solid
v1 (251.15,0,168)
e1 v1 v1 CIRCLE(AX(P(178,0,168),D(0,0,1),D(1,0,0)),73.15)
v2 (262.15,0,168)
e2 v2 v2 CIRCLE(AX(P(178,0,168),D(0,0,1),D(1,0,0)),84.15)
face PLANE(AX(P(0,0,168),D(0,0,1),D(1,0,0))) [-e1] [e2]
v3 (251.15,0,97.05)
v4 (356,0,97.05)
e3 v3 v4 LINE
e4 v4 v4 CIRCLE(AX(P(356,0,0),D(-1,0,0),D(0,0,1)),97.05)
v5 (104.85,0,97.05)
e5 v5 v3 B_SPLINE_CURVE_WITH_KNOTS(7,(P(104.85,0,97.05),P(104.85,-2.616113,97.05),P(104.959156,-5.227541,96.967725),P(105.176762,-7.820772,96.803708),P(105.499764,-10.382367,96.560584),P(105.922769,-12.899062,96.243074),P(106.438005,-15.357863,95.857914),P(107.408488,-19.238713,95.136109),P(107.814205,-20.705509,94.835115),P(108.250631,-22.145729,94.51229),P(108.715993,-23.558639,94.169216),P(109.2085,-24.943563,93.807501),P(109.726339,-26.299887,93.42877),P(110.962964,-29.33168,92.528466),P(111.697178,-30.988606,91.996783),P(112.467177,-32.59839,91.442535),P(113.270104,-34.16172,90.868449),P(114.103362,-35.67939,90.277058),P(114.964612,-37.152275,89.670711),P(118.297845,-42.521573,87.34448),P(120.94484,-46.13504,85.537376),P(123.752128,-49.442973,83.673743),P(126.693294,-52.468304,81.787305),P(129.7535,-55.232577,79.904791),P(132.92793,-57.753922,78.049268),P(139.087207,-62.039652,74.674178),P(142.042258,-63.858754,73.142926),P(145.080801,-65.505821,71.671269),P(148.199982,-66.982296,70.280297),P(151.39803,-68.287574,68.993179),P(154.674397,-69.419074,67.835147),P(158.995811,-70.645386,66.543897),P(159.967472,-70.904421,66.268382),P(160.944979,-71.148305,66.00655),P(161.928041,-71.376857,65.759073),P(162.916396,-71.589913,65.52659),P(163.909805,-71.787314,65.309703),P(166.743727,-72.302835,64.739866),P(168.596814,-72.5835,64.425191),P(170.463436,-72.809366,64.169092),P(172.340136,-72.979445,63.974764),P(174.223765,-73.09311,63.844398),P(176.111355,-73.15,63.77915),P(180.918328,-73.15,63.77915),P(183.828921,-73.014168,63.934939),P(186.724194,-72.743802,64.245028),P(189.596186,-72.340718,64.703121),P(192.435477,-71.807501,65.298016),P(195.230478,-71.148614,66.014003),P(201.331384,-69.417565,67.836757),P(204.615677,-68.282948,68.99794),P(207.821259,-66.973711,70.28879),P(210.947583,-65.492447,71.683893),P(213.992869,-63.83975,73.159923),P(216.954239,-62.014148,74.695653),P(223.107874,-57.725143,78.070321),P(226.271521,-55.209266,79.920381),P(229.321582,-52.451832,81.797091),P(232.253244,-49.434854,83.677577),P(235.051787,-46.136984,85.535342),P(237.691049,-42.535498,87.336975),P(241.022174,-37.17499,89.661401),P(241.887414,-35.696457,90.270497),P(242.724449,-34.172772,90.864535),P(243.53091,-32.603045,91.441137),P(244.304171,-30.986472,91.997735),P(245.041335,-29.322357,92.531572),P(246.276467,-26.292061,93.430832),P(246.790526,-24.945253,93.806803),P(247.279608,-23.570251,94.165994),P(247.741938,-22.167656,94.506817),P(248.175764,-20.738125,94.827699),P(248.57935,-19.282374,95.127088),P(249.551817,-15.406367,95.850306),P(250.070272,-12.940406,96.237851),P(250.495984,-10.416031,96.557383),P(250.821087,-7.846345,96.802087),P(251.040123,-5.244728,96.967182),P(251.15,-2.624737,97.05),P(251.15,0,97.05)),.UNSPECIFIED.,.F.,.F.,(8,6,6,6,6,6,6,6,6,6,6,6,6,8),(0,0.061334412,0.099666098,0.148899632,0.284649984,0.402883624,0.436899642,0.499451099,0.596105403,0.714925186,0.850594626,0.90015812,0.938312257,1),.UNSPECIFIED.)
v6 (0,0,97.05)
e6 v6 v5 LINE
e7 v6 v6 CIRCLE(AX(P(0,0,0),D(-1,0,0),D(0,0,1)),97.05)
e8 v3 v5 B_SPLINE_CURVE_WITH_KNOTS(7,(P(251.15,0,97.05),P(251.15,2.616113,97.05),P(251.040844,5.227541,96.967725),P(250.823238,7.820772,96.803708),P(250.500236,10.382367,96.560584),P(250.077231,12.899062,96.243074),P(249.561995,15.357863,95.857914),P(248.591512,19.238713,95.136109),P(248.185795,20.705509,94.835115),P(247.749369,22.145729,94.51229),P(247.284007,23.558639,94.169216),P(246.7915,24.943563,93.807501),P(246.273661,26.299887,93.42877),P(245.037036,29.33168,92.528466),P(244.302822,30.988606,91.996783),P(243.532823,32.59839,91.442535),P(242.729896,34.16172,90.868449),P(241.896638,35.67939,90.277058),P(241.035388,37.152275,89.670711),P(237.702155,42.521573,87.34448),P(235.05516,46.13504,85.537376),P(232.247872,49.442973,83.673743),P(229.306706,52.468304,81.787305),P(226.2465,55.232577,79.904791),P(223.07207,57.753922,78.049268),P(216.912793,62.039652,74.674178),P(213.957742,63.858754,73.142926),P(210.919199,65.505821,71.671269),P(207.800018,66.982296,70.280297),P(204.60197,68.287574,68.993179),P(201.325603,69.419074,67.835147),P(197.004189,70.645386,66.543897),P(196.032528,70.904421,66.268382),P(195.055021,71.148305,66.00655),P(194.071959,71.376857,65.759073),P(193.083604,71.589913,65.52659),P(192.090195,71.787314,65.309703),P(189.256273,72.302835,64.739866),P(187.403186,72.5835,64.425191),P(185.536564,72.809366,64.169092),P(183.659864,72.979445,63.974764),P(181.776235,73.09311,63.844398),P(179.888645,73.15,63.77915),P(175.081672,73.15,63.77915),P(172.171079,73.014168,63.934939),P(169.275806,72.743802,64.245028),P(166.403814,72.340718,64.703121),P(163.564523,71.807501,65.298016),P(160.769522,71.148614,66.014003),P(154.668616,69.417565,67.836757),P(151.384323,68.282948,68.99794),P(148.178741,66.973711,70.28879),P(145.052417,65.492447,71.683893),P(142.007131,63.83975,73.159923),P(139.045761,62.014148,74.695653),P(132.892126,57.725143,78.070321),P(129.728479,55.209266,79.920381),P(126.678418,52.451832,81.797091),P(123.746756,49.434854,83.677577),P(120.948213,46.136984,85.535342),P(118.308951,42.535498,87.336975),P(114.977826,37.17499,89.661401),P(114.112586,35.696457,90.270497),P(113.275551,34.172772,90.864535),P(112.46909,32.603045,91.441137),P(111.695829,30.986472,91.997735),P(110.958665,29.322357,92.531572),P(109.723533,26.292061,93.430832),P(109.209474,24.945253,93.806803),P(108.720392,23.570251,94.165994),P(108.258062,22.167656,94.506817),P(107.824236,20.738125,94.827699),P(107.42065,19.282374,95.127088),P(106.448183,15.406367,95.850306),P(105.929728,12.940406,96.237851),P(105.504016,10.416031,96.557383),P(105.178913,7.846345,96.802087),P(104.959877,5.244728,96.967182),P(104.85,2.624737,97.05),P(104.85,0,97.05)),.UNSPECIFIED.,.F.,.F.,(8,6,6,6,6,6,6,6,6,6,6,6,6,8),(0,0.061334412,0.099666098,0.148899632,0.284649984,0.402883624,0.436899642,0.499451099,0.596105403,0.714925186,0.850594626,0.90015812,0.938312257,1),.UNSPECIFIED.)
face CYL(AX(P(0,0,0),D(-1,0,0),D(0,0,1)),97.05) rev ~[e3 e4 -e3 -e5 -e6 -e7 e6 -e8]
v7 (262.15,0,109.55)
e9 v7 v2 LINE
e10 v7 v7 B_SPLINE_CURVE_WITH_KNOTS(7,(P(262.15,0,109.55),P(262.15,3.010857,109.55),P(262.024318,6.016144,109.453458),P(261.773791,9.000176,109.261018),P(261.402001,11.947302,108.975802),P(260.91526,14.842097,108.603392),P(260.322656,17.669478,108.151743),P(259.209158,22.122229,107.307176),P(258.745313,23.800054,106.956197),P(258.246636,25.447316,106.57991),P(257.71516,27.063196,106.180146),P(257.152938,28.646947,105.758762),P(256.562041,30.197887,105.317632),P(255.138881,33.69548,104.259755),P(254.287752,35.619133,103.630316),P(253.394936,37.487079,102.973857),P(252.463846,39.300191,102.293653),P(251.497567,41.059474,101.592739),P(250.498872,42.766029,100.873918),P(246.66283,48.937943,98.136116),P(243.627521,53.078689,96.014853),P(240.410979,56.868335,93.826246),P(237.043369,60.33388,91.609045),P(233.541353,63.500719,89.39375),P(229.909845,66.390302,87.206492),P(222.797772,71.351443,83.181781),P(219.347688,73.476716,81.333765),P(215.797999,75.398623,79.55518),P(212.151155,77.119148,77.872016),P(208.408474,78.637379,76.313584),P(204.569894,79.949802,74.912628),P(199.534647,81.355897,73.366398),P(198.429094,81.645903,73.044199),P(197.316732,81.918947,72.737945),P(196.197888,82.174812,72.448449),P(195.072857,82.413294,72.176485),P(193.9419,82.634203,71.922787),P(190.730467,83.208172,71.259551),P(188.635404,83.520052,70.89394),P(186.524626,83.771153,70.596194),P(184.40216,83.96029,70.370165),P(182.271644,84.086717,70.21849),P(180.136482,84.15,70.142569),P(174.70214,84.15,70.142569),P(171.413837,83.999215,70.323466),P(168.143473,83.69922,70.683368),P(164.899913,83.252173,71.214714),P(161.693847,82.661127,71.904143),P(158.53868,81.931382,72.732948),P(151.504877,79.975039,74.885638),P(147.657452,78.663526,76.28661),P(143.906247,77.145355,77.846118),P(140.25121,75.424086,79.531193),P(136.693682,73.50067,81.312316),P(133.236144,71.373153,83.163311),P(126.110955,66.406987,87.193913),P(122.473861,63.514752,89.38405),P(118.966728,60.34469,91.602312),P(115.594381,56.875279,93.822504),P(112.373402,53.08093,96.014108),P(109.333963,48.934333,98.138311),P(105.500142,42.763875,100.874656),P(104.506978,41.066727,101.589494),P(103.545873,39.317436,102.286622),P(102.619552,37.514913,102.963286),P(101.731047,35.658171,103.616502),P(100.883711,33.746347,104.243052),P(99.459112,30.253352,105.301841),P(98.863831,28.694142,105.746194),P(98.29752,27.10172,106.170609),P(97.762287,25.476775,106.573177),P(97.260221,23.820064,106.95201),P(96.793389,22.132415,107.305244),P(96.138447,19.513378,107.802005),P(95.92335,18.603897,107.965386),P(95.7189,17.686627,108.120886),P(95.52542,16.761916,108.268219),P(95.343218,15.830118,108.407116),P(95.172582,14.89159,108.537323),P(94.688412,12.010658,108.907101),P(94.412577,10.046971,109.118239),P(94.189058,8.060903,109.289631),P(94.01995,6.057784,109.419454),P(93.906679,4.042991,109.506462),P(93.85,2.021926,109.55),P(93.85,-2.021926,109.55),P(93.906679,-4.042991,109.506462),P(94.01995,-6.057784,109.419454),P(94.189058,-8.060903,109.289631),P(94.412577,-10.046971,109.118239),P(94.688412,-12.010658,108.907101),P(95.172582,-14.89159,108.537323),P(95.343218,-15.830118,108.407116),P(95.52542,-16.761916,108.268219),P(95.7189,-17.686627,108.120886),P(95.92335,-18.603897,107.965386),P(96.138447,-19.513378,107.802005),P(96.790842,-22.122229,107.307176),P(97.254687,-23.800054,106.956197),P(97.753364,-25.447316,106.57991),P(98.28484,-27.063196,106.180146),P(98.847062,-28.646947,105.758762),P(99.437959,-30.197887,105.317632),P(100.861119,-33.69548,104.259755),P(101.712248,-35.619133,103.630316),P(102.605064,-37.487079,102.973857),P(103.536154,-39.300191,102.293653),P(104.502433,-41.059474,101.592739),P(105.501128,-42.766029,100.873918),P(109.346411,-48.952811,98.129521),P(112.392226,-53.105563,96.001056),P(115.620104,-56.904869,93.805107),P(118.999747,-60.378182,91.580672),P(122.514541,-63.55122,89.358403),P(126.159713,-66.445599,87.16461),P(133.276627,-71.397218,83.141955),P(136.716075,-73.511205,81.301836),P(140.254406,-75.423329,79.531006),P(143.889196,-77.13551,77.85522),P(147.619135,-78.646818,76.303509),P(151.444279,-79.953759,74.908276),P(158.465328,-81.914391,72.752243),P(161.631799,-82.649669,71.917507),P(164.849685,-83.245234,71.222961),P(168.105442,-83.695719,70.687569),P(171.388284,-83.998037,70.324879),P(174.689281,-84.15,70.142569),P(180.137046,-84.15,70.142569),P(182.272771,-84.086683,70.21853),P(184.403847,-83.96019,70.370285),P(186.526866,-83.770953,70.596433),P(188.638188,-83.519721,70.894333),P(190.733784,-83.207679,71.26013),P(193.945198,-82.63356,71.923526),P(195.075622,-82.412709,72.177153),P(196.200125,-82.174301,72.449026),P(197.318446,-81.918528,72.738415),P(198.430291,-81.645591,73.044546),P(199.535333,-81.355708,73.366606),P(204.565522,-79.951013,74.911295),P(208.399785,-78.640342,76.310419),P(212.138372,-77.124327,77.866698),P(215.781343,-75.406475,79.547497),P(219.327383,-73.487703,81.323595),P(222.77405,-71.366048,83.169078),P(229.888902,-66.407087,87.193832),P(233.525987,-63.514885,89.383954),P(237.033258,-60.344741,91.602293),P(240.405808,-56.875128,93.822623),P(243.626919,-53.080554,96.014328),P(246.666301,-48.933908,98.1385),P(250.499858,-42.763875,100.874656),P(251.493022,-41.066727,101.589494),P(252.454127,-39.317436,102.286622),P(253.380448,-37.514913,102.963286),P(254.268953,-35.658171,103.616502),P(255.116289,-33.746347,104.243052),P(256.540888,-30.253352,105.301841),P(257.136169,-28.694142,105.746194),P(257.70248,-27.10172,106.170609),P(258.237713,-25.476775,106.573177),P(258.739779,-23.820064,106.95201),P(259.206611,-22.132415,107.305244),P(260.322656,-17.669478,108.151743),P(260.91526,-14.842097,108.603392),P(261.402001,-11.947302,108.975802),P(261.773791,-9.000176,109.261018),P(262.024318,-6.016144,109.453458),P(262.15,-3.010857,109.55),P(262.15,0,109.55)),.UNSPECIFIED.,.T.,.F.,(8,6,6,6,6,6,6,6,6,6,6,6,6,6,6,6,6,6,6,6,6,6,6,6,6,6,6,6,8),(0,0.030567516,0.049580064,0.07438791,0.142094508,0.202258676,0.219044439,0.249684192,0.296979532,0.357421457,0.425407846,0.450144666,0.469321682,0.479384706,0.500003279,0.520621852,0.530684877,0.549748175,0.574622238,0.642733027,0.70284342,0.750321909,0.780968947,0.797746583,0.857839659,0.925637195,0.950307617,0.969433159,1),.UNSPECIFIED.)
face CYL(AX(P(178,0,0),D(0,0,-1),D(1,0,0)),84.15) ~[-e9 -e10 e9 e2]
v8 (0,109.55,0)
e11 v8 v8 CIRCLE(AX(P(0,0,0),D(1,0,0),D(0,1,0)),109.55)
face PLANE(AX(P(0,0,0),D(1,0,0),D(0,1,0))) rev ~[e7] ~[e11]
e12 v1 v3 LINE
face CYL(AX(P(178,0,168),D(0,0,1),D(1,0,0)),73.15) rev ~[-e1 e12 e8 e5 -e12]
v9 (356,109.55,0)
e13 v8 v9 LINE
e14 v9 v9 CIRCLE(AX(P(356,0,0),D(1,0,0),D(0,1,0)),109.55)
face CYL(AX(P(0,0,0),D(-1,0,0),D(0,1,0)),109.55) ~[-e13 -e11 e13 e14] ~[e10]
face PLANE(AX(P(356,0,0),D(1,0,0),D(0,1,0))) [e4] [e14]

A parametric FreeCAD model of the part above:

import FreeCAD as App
import Part
import Sketcher
from FreeCAD import Vector

doc = App.newDocument("Part")
body = doc.addObject("PartDesign::Body", "Body")

sketch1 = body.newObject("Sketcher::SketchObject", "Sketch")
sketch1.AttachmentSupport = (doc.getObject("YZ_Plane"), [""])
sketch1.MapMode = "FlatFace"
sketch1.addGeometry(Part.Circle(Vector(0, 0, 0), Vector(0, 0, 1), 110), False)
sketch1.addConstraint(Sketcher.Constraint("Coincident", 0, 3, -1, 1))
sketch1.addConstraint(Sketcher.Constraint("Diameter", 0, 219.1))
pad1 = body.newObject("PartDesign::Pad", "Pad")
pad1.Profile = sketch1
pad1.Length = 356

sketch2 = body.newObject("Sketcher::SketchObject", "Sketch001")
sketch2.AttachmentSupport = (doc.getObject("XY_Plane"), [""])
sketch2.MapMode = "FlatFace"
sketch2.addGeometry(Part.Circle(Vector(178, 0, 0), Vector(0, 0, 1), 84), False)
sketch2.addConstraint(Sketcher.Constraint("PointOnObject", 0, 3, -1))
sketch2.addConstraint(Sketcher.Constraint("Diameter", 0, 168.3))
sketch2.addConstraint(Sketcher.Constraint("DistanceX", -1, 1, 0, 3, 178.0))
pad2 = body.newObject("PartDesign::Pad", "Pad001")
pad2.Profile = sketch2
pad2.Length = 168

sketch3 = body.newObject("Sketcher::SketchObject", "Sketch002")
sketch3.AttachmentSupport = (doc.getObject("YZ_Plane"), [""])
sketch3.MapMode = "FlatFace"
sketch3.addGeometry(Part.Circle(Vector(0, 0, 0), Vector(0, 0, 1), 97), False)
sketch3.addConstraint(Sketcher.Constraint("Coincident", 0, 3, -1, 1))
sketch3.addConstraint(Sketcher.Constraint("Diameter", 0, 194.1))
pocket1 = body.newObject("PartDesign::Pocket", "Pocket")
pocket1.Profile = sketch3
pocket1.Type = "ThroughAll"
pocket1.Reversed = True

sketch4 = body.newObject("Sketcher::SketchObject", "Sketch003")
sketch4.AttachmentSupport = (doc.getObject("XY_Plane"), [""])
sketch4.MapMode = "FlatFace"
sketch4.AttachmentOffset = App.Placement(Vector(0, 0, 168), App.Rotation())
sketch4.addGeometry(Part.Circle(Vector(178, 0, 0), Vector(0, 0, 1), 73), False)
sketch4.addConstraint(Sketcher.Constraint("PointOnObject", 0, 3, -1))
sketch4.addConstraint(Sketcher.Constraint("Diameter", 0, 146.3))
sketch4.addConstraint(Sketcher.Constraint("DistanceX", -1, 1, 0, 3, 178.0))
pocket2 = body.newObject("PartDesign::Pocket", "Pocket001")
pocket2.Profile = sketch4
pocket2.Type = "UpToFirst"

doc.recompute()
